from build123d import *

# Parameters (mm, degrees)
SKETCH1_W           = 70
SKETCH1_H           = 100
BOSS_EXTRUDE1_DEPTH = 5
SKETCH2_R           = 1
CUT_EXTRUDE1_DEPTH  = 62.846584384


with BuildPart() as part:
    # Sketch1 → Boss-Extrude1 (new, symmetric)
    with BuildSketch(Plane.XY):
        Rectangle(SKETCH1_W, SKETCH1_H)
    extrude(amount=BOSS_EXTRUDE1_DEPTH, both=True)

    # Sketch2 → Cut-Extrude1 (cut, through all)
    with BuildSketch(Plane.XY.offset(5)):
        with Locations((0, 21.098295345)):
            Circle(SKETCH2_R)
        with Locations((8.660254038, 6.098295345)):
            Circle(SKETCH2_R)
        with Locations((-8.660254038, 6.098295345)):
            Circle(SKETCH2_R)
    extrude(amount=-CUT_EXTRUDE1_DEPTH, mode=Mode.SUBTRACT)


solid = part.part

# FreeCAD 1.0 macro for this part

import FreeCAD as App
import Part
import Sketcher

V = App.Vector
Q = App.Units.Quantity


def add_polygon(sketch, points):
    """Adds a closed chain of lines whose ends are joined by coincident constraints."""
    first, n = sketch.GeometryCount, len(points)
    for a, b in zip(points, points[1:] + points[:1]):
        sketch.addGeometry(Part.LineSegment(App.Vector(*a, 0), App.Vector(*b, 0)), False)
    for i in range(n):
        sketch.addConstraint(Sketcher.Constraint("Coincident", first + i, 2, first + (i + 1) % n, 1))

doc = App.newDocument("Part")
params = doc.addObject("Spreadsheet::Sheet", "Params")
for row, (alias, value) in enumerate([
    ("sketch1_width", "70 mm"),
    ("sketch1_height", "100 mm"),
    ("pad1_length", "10 mm"),
    ("sketch2_diameter", "2 mm"),
], start=1):
    params.set(f"A{row}", alias)
    params.set(f"B{row}", "=" + value)
    params.setAlias(f"B{row}", alias)

body = doc.addObject("PartDesign::Body", "Body")

# Sketch on XY plane
sketch1 = body.newObject("Sketcher::SketchObject", "Sketch")
sketch1.AttachmentSupport = (doc.getObject("XY_Plane"), [""])
sketch1.MapMode = "FlatFace"
add_polygon(sketch1, [(-35, 50), (-35, -50), (35, -50), (35, 50)])  # lines 0-3
sketch1.addConstraint(Sketcher.Constraint("Vertical", 0))
sketch1.addConstraint(Sketcher.Constraint("Horizontal", 1))
sketch1.addConstraint(Sketcher.Constraint("Vertical", 2))
sketch1.addConstraint(Sketcher.Constraint("Horizontal", 3))
sketch1.addConstraint(Sketcher.Constraint("Symmetric", 0, 2, 2, 2, -1, 1))
sketch1.addConstraint(Sketcher.Constraint("DistanceX", 1, 1, 1, 2, Q("70 mm")))
sketch1.addConstraint(Sketcher.Constraint("DistanceY", 0, 2, 0, 1, Q("100 mm")))
sketch1.setExpression("Constraints[9]", "Params.sketch1_width")
sketch1.setExpression("Constraints[10]", "Params.sketch1_height")
pad1 = body.newObject("PartDesign::Pad", "Pad")
pad1.Profile = sketch1
pad1.setExpression("Length", "Params.pad1_length")
pad1.Midplane = True

# Sketch on XY plane
sketch2 = body.newObject("Sketcher::SketchObject", "Sketch001")
sketch2.AttachmentSupport = (doc.getObject("XY_Plane"), [""])
sketch2.MapMode = "FlatFace"
sketch2.AttachmentOffset = App.Placement(V(0, 0, 5), App.Rotation())
sketch2.addGeometry(Part.Circle(V(0, 21.098295, 0), V(0, 0, 1), 1), False)
sketch2.addGeometry(Part.Circle(V(8.660254, 6.098295, 0), V(0, 0, 1), 1), False)
sketch2.addGeometry(Part.Circle(V(-8.660254, 6.098295, 0), V(0, 0, 1), 1), False)
sketch2.addConstraint(Sketcher.Constraint("Equal", 0, 1))
sketch2.addConstraint(Sketcher.Constraint("Equal", 1, 2))
sketch2.addConstraint(Sketcher.Constraint("Symmetric", 1, 3, 2, 3, -2))
sketch2.addConstraint(Sketcher.Constraint("PointOnObject", 0, 3, -2))
sketch2.addConstraint(Sketcher.Constraint("Diameter", 0, Q("2 mm")))
sketch2.addConstraint(Sketcher.Constraint("DistanceY", 1, 3, 0, 3, Q("15 mm")))
sketch2.addConstraint(Sketcher.Constraint("DistanceX", 2, 3, 1, 3, Q("17.320508 mm")))
sketch2.addConstraint(Sketcher.Constraint("DistanceY", -1, 1, 0, 3, Q("21.098295 mm")))
sketch2.setExpression("Constraints[4]", "Params.sketch2_diameter")
pocket1 = body.newObject("PartDesign::Pocket", "Pocket")
pocket1.Profile = sketch2
pocket1.Type = "ThroughAll"

doc.recompute()
